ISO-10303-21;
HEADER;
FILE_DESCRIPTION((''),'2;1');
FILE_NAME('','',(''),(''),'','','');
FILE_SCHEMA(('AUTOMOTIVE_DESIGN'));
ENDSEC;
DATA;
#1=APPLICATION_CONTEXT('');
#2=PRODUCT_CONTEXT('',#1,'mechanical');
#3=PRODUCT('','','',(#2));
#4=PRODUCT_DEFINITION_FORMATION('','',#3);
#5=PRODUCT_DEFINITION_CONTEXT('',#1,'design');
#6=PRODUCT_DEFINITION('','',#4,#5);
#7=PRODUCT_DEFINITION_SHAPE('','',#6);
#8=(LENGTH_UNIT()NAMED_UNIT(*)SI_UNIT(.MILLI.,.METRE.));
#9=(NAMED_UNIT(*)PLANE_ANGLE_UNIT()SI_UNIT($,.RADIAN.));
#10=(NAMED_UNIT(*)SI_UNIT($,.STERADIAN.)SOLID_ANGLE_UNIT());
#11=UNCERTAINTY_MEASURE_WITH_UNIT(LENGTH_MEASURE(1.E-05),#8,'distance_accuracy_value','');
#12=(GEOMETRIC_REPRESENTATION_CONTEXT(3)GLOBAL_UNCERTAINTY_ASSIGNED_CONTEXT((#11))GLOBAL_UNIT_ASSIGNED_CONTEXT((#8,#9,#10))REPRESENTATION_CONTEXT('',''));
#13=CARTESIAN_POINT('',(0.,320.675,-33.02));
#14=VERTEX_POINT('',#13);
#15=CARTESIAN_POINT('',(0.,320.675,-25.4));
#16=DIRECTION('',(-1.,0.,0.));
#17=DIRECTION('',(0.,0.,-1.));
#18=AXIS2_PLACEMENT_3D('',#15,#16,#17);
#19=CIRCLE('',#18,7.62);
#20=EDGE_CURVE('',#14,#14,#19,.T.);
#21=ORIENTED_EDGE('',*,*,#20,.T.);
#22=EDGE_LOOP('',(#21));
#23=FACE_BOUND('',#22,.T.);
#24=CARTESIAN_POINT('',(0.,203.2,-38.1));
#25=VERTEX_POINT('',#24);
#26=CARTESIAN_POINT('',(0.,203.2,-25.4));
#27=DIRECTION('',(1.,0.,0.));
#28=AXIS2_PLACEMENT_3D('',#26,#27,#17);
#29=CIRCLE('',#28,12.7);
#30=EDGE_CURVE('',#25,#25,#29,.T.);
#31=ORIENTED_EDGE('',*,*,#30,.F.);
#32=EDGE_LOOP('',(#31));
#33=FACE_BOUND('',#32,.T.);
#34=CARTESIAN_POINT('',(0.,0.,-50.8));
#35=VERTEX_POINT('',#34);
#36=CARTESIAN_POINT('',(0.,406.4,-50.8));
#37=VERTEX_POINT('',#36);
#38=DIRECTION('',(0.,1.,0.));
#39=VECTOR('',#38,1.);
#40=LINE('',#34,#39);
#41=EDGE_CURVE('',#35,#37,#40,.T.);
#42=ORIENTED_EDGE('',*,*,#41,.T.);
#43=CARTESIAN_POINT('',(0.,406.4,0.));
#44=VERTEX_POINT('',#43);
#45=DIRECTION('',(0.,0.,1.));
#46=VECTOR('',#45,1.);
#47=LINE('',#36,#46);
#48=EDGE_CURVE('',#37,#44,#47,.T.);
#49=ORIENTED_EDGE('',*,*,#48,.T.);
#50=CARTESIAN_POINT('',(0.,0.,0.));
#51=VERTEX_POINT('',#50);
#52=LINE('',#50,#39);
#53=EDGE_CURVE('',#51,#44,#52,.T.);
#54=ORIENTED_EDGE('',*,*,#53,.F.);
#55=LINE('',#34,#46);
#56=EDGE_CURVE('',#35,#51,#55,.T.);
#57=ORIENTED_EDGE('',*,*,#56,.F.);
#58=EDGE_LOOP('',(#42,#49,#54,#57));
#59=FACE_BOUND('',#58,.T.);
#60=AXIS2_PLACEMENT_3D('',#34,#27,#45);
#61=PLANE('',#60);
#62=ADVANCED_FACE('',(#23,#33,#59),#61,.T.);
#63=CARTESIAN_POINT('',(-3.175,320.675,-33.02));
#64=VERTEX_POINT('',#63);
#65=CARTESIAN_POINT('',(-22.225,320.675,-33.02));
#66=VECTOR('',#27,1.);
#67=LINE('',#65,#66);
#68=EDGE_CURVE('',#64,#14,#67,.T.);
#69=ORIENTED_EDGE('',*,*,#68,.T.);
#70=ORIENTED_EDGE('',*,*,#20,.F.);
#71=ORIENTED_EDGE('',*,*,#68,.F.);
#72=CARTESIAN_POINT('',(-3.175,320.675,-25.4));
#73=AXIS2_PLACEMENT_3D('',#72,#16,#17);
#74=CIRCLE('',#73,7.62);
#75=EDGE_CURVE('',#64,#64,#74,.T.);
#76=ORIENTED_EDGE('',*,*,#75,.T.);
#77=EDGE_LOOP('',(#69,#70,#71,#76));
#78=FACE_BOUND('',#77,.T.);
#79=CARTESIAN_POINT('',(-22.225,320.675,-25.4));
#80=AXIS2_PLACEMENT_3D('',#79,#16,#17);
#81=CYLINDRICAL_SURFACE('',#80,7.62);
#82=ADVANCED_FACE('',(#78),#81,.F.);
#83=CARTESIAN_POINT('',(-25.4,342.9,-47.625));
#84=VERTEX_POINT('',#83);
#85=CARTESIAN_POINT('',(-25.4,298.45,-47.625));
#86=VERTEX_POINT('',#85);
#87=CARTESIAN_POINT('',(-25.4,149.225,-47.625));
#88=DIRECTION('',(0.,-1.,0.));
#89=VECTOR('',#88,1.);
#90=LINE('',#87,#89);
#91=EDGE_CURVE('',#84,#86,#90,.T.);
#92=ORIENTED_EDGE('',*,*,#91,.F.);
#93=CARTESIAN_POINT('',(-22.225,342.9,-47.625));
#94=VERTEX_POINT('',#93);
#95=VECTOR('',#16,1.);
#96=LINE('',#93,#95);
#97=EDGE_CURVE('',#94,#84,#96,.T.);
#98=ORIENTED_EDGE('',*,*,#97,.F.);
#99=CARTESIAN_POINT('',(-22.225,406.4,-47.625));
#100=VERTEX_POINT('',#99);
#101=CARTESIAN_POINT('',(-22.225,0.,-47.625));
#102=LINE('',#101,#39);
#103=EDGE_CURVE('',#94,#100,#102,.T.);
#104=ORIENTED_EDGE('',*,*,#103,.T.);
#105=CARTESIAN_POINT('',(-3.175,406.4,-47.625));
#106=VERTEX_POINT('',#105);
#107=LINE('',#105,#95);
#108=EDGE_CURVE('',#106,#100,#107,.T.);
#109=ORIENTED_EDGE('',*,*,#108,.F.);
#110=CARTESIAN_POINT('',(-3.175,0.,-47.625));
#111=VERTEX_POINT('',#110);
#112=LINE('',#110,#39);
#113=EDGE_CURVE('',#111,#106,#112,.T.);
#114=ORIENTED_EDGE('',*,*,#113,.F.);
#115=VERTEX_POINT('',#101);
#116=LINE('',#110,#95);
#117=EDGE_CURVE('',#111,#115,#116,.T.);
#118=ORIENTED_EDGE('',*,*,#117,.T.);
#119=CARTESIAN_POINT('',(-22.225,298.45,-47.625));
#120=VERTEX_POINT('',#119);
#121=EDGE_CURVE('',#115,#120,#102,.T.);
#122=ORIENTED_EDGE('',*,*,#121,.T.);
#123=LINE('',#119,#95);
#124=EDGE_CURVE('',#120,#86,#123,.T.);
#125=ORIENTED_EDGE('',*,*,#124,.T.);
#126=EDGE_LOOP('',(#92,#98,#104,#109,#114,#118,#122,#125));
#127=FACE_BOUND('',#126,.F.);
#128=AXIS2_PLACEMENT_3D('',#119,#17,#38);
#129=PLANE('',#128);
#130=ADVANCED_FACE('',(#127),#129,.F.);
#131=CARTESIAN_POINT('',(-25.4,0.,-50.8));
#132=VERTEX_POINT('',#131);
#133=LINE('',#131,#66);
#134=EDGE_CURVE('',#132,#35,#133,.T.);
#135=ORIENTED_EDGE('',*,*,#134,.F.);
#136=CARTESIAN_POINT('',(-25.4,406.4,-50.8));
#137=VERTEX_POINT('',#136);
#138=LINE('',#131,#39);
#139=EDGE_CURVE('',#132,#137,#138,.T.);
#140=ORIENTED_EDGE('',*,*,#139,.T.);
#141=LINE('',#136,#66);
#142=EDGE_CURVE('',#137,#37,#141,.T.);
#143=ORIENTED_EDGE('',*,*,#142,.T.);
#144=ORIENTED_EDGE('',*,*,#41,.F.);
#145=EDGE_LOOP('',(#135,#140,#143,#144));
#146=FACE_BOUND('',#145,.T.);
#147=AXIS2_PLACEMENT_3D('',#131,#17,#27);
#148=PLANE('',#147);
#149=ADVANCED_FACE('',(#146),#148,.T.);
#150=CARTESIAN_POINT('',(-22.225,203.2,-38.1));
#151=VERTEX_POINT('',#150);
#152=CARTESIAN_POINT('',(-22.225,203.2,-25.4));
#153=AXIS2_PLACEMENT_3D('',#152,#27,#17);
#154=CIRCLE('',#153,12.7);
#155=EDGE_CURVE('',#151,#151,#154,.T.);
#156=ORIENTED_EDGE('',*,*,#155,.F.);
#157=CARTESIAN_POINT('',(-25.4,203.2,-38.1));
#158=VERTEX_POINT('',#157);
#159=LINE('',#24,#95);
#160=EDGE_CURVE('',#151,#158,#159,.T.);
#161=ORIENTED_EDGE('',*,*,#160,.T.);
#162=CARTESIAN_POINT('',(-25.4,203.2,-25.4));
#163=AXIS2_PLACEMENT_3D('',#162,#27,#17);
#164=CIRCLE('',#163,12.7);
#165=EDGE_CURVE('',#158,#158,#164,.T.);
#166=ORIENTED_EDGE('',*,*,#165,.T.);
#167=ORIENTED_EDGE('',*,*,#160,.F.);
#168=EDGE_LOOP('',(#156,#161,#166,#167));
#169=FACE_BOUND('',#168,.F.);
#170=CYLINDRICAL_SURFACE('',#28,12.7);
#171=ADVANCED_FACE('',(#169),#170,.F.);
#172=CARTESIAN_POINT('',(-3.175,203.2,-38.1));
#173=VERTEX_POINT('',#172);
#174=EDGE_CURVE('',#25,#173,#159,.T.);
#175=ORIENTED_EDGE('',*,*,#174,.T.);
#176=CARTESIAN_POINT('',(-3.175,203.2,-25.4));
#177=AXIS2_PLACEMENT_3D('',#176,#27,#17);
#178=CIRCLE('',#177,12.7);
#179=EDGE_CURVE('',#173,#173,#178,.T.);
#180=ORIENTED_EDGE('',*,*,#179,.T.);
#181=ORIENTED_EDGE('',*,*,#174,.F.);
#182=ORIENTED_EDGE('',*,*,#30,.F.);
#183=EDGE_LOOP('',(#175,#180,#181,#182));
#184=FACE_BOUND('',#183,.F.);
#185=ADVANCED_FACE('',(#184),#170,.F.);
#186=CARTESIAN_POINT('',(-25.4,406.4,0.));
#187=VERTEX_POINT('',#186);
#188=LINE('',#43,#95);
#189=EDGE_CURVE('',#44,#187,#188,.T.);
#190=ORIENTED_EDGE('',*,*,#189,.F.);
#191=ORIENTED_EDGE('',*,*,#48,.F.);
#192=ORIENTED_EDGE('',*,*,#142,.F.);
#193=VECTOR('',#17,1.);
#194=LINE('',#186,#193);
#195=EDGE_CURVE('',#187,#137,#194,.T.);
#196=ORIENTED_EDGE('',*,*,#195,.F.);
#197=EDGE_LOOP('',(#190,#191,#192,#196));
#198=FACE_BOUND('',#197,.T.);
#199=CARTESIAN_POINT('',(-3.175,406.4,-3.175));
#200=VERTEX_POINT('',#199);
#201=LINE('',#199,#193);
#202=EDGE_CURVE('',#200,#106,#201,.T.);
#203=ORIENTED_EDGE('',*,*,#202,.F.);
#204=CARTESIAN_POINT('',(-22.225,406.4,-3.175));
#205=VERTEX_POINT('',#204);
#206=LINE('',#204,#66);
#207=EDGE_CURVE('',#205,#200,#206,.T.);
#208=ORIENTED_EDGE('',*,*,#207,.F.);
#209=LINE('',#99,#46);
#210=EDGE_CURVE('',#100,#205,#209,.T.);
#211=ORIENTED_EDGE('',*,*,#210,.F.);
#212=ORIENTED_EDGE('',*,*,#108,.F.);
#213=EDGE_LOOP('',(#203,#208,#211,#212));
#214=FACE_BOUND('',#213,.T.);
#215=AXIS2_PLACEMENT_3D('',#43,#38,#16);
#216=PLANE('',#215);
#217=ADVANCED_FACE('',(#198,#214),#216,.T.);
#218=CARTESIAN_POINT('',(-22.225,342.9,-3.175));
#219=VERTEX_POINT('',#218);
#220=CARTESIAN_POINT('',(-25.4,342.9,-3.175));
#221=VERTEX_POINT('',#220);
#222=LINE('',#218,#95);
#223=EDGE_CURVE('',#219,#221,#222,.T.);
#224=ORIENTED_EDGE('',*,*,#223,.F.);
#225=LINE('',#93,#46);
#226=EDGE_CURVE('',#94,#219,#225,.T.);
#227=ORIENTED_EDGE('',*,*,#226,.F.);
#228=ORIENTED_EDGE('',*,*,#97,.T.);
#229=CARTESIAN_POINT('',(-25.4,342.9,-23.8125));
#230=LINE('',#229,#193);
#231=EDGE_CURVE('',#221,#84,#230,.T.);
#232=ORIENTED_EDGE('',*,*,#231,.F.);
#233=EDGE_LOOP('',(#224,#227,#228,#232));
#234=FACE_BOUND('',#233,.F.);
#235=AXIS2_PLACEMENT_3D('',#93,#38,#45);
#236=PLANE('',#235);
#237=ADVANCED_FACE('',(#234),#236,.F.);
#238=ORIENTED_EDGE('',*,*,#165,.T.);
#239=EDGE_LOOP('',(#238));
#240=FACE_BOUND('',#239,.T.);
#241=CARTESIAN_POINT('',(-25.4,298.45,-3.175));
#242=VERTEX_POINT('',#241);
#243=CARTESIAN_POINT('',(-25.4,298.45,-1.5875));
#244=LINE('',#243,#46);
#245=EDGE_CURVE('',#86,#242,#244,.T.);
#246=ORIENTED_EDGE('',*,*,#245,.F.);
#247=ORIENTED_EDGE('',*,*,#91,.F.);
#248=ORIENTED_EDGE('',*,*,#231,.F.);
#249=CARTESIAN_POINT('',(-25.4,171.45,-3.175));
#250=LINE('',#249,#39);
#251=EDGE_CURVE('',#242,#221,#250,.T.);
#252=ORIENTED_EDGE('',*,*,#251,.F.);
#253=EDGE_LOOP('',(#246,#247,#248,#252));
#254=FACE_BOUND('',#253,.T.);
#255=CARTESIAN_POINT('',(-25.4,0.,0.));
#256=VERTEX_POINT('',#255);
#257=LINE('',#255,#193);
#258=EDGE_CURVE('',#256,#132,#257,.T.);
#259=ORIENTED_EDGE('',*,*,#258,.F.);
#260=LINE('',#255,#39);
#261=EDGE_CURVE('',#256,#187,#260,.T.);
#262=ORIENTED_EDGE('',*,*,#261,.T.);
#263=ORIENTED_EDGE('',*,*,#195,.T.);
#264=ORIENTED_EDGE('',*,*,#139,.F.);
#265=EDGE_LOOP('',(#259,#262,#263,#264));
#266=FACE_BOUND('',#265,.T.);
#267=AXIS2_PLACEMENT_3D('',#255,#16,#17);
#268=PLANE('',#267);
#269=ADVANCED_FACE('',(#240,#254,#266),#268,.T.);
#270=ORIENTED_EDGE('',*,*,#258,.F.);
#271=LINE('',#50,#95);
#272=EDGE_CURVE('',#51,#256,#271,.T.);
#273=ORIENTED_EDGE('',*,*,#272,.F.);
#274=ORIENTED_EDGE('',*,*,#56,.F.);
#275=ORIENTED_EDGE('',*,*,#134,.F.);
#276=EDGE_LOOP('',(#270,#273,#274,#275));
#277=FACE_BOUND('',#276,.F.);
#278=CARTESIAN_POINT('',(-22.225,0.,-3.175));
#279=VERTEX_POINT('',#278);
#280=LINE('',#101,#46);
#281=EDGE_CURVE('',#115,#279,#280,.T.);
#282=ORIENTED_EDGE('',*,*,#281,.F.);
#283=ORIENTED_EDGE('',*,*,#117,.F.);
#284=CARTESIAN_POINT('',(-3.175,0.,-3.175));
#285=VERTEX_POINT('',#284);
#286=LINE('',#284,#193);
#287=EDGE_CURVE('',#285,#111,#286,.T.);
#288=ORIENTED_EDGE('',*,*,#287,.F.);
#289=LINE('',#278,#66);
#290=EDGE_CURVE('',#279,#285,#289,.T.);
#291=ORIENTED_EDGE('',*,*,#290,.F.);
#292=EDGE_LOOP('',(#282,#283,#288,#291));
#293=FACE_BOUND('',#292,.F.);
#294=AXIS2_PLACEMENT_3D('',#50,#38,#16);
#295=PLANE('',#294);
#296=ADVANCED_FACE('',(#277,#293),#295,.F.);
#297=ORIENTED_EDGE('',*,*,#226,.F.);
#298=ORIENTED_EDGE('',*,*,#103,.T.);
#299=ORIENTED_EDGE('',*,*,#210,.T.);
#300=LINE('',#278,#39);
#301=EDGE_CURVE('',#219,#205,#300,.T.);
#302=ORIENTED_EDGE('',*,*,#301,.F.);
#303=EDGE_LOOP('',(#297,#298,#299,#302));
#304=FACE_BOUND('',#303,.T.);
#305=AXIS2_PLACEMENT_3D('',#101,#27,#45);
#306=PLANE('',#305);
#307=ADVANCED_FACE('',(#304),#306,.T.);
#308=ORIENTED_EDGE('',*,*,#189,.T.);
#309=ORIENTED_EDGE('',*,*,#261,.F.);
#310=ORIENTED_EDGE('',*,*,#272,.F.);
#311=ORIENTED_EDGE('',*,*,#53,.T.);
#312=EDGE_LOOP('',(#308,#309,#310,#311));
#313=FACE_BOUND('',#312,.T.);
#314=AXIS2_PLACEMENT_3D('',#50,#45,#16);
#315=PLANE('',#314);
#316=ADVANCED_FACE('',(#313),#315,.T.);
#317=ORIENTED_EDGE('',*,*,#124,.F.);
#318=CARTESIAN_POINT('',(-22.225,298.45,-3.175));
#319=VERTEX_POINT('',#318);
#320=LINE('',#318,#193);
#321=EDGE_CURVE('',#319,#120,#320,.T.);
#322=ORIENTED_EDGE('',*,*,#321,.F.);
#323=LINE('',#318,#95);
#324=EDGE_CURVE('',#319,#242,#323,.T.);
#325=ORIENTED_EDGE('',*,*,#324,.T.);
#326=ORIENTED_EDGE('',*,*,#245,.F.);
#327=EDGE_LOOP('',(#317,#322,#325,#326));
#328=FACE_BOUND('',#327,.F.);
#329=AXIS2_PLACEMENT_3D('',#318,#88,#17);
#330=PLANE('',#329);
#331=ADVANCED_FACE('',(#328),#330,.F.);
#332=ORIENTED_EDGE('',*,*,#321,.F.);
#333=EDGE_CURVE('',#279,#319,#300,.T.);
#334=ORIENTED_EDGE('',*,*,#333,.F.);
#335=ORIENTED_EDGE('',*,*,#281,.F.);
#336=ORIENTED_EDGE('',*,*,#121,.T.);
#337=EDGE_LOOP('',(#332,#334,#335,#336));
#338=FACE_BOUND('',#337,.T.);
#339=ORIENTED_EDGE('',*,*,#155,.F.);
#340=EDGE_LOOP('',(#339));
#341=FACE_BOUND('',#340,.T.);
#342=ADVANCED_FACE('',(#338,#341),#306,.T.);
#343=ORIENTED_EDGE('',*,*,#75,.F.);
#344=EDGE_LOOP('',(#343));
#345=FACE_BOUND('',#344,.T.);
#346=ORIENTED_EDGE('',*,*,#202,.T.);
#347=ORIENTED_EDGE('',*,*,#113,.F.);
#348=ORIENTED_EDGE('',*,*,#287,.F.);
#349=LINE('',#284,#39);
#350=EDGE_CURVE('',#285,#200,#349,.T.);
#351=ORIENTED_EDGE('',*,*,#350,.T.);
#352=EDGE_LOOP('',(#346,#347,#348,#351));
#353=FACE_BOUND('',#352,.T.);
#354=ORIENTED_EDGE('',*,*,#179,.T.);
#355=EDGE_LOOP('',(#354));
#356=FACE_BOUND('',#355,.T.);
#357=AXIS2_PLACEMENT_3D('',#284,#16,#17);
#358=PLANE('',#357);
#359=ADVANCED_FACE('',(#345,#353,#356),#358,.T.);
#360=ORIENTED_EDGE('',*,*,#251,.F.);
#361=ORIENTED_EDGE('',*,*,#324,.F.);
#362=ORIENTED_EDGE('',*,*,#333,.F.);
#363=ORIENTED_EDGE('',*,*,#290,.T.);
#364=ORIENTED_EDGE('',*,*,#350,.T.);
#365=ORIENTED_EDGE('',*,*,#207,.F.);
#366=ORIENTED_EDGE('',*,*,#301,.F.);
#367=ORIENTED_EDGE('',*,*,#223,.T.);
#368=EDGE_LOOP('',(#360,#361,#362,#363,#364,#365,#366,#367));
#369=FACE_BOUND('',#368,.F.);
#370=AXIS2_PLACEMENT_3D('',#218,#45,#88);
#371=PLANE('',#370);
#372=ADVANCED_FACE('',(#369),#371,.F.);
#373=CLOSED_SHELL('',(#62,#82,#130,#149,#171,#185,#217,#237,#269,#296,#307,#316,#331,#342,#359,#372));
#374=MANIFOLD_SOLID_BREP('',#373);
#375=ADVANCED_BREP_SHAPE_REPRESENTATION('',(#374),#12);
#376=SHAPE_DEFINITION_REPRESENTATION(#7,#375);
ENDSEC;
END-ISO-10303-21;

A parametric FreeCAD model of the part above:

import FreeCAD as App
import Part
import Sketcher
from FreeCAD import Vector
Q = App.Units.Quantity


def add_polygon(sketch, points):
    """Adds a closed chain of lines whose ends are joined by coincident constraints."""
    first, n = sketch.GeometryCount, len(points)
    for a, b in zip(points, points[1:] + points[:1]):
        sketch.addGeometry(Part.LineSegment(App.Vector(*a, 0), App.Vector(*b, 0)), False)
    for i in range(n):
        sketch.addConstraint(Sketcher.Constraint("Coincident", first + i, 2, first + (i + 1) % n, 1))

doc = App.newDocument("Part")
body = doc.addObject("PartDesign::Body", "Body")

sketch1 = body.newObject("Sketcher::SketchObject", "Sketch")
sketch1.AttachmentSupport = (doc.getObject("XZ_Plane"), [""])
sketch1.MapMode = "FlatFace"
add_polygon(sketch1, [(-25.4, 0), (0, 0), (0, -50.8), (-25.4, -50.8)])
add_polygon(sketch1, [(-22.225, -3.175), (-22.225, -47.625), (-3.175, -47.625), (-3.175, -3.175)])
sketch1.addConstraint([
    Sketcher.Constraint("Horizontal", 0),
    Sketcher.Constraint("Vertical", 1),
    Sketcher.Constraint("Horizontal", 2),
    Sketcher.Constraint("Vertical", 3),
    Sketcher.Constraint("Vertical", 4),
    Sketcher.Constraint("Horizontal", 5),
    Sketcher.Constraint("Vertical", 6),
    Sketcher.Constraint("Horizontal", 7),
    Sketcher.Constraint("Coincident", 0, 2, -1, 1),
    Sketcher.Constraint("DistanceX", 0, 1, 0, 2, Q("1 in")),
    Sketcher.Constraint("DistanceY", 1, 2, 1, 1, Q("2 in")),
    Sketcher.Constraint("DistanceX", 5, 2, -1, 1, Q("0.125 in")),
    Sketcher.Constraint("DistanceY", 6, 2, -1, 1, Q("0.125 in")),
    Sketcher.Constraint("DistanceX", 2, 2, 4, 2, Q("0.125 in")),
    Sketcher.Constraint("DistanceY", 2, 2, 4, 2, Q("0.125 in")),
])
pad1 = body.newObject("PartDesign::Pad", "Pad")
pad1.Profile = sketch1
pad1.Length = Q("16 in")
pad1.Reversed = True

sketch2 = body.newObject("Sketcher::SketchObject", "Sketch001")
sketch2.AttachmentSupport = (doc.getObject("YZ_Plane"), [""])
sketch2.MapMode = "FlatFace"
sketch2.addGeometry(Part.Circle(Vector(203.2, -25.4, 0), Vector(0, 0, 1), 12.7), False)
sketch2.addConstraint([
    Sketcher.Constraint("Diameter", 0, Q("1 in")),
    Sketcher.Constraint("DistanceX", -1, 1, 0, 3, Q("8 in")),
    Sketcher.Constraint("DistanceY", 0, 3, -1, 1, Q("1 in")),
])
pocket1 = body.newObject("PartDesign::Pocket", "Pocket")
pocket1.Profile = sketch2
pocket1.Length = Q("1 in")

sketch3 = body.newObject("Sketcher::SketchObject", "Sketch002")
sketch3.AttachmentSupport = (doc.getObject("YZ_Plane"), [""])
sketch3.MapMode = "FlatFace"
sketch3.AttachmentOffset = App.Placement(Vector(0, 0, -0.875 * 25.4), App.Rotation())
sketch3.addGeometry(Part.Circle(Vector(320.675, -25.4, 0), Vector(0, 0, 1), 7.62), False)
sketch3.addConstraint([
    Sketcher.Constraint("Diameter", 0, Q("0.6 in")),
    Sketcher.Constraint("DistanceY", 0, 3, -1, 1, Q("1 in")),
    Sketcher.Constraint("DistanceX", -1, 1, 0, 3, Q("12.625 in")),
])
pocket2 = body.newObject("PartDesign::Pocket", "Pocket001")
pocket2.Profile = sketch3
pocket2.Length = Q("1 in")
pocket2.Reversed = True

sketch4 = body.newObject("Sketcher::SketchObject", "Sketch003")
sketch4.AttachmentSupport = (doc.getObject("YZ_Plane"), [""])
sketch4.MapMode = "FlatFace"
sketch4.AttachmentOffset = App.Placement(Vector(0, 0, -0.875 * 25.4), App.Rotation())
add_polygon(sketch4, [(298.45, -47.625), (342.9, -47.625), (342.9, -3.175), (298.45, -3.175)])
sketch4.addConstraint([
    Sketcher.Constraint("Horizontal", 0),
    Sketcher.Constraint("Vertical", 1),
    Sketcher.Constraint("Horizontal", 2),
    Sketcher.Constraint("Vertical", 3),
    Sketcher.Constraint("Equal", 2, 1),
    Sketcher.Constraint("DistanceX", 0, 1, 0, 2, Q("1.75 in")),
    Sketcher.Constraint("DistanceX", -1, 1, 0, 2, Q("13.5 in")),
    Sketcher.Constraint("DistanceY", 0, 2, -1, 1, Q("1.875 in")),
])
pocket3 = body.newObject("PartDesign::Pocket", "Pocket002")
pocket3.Profile = sketch4
pocket3.Length = Q("1 in")

doc.recompute()
